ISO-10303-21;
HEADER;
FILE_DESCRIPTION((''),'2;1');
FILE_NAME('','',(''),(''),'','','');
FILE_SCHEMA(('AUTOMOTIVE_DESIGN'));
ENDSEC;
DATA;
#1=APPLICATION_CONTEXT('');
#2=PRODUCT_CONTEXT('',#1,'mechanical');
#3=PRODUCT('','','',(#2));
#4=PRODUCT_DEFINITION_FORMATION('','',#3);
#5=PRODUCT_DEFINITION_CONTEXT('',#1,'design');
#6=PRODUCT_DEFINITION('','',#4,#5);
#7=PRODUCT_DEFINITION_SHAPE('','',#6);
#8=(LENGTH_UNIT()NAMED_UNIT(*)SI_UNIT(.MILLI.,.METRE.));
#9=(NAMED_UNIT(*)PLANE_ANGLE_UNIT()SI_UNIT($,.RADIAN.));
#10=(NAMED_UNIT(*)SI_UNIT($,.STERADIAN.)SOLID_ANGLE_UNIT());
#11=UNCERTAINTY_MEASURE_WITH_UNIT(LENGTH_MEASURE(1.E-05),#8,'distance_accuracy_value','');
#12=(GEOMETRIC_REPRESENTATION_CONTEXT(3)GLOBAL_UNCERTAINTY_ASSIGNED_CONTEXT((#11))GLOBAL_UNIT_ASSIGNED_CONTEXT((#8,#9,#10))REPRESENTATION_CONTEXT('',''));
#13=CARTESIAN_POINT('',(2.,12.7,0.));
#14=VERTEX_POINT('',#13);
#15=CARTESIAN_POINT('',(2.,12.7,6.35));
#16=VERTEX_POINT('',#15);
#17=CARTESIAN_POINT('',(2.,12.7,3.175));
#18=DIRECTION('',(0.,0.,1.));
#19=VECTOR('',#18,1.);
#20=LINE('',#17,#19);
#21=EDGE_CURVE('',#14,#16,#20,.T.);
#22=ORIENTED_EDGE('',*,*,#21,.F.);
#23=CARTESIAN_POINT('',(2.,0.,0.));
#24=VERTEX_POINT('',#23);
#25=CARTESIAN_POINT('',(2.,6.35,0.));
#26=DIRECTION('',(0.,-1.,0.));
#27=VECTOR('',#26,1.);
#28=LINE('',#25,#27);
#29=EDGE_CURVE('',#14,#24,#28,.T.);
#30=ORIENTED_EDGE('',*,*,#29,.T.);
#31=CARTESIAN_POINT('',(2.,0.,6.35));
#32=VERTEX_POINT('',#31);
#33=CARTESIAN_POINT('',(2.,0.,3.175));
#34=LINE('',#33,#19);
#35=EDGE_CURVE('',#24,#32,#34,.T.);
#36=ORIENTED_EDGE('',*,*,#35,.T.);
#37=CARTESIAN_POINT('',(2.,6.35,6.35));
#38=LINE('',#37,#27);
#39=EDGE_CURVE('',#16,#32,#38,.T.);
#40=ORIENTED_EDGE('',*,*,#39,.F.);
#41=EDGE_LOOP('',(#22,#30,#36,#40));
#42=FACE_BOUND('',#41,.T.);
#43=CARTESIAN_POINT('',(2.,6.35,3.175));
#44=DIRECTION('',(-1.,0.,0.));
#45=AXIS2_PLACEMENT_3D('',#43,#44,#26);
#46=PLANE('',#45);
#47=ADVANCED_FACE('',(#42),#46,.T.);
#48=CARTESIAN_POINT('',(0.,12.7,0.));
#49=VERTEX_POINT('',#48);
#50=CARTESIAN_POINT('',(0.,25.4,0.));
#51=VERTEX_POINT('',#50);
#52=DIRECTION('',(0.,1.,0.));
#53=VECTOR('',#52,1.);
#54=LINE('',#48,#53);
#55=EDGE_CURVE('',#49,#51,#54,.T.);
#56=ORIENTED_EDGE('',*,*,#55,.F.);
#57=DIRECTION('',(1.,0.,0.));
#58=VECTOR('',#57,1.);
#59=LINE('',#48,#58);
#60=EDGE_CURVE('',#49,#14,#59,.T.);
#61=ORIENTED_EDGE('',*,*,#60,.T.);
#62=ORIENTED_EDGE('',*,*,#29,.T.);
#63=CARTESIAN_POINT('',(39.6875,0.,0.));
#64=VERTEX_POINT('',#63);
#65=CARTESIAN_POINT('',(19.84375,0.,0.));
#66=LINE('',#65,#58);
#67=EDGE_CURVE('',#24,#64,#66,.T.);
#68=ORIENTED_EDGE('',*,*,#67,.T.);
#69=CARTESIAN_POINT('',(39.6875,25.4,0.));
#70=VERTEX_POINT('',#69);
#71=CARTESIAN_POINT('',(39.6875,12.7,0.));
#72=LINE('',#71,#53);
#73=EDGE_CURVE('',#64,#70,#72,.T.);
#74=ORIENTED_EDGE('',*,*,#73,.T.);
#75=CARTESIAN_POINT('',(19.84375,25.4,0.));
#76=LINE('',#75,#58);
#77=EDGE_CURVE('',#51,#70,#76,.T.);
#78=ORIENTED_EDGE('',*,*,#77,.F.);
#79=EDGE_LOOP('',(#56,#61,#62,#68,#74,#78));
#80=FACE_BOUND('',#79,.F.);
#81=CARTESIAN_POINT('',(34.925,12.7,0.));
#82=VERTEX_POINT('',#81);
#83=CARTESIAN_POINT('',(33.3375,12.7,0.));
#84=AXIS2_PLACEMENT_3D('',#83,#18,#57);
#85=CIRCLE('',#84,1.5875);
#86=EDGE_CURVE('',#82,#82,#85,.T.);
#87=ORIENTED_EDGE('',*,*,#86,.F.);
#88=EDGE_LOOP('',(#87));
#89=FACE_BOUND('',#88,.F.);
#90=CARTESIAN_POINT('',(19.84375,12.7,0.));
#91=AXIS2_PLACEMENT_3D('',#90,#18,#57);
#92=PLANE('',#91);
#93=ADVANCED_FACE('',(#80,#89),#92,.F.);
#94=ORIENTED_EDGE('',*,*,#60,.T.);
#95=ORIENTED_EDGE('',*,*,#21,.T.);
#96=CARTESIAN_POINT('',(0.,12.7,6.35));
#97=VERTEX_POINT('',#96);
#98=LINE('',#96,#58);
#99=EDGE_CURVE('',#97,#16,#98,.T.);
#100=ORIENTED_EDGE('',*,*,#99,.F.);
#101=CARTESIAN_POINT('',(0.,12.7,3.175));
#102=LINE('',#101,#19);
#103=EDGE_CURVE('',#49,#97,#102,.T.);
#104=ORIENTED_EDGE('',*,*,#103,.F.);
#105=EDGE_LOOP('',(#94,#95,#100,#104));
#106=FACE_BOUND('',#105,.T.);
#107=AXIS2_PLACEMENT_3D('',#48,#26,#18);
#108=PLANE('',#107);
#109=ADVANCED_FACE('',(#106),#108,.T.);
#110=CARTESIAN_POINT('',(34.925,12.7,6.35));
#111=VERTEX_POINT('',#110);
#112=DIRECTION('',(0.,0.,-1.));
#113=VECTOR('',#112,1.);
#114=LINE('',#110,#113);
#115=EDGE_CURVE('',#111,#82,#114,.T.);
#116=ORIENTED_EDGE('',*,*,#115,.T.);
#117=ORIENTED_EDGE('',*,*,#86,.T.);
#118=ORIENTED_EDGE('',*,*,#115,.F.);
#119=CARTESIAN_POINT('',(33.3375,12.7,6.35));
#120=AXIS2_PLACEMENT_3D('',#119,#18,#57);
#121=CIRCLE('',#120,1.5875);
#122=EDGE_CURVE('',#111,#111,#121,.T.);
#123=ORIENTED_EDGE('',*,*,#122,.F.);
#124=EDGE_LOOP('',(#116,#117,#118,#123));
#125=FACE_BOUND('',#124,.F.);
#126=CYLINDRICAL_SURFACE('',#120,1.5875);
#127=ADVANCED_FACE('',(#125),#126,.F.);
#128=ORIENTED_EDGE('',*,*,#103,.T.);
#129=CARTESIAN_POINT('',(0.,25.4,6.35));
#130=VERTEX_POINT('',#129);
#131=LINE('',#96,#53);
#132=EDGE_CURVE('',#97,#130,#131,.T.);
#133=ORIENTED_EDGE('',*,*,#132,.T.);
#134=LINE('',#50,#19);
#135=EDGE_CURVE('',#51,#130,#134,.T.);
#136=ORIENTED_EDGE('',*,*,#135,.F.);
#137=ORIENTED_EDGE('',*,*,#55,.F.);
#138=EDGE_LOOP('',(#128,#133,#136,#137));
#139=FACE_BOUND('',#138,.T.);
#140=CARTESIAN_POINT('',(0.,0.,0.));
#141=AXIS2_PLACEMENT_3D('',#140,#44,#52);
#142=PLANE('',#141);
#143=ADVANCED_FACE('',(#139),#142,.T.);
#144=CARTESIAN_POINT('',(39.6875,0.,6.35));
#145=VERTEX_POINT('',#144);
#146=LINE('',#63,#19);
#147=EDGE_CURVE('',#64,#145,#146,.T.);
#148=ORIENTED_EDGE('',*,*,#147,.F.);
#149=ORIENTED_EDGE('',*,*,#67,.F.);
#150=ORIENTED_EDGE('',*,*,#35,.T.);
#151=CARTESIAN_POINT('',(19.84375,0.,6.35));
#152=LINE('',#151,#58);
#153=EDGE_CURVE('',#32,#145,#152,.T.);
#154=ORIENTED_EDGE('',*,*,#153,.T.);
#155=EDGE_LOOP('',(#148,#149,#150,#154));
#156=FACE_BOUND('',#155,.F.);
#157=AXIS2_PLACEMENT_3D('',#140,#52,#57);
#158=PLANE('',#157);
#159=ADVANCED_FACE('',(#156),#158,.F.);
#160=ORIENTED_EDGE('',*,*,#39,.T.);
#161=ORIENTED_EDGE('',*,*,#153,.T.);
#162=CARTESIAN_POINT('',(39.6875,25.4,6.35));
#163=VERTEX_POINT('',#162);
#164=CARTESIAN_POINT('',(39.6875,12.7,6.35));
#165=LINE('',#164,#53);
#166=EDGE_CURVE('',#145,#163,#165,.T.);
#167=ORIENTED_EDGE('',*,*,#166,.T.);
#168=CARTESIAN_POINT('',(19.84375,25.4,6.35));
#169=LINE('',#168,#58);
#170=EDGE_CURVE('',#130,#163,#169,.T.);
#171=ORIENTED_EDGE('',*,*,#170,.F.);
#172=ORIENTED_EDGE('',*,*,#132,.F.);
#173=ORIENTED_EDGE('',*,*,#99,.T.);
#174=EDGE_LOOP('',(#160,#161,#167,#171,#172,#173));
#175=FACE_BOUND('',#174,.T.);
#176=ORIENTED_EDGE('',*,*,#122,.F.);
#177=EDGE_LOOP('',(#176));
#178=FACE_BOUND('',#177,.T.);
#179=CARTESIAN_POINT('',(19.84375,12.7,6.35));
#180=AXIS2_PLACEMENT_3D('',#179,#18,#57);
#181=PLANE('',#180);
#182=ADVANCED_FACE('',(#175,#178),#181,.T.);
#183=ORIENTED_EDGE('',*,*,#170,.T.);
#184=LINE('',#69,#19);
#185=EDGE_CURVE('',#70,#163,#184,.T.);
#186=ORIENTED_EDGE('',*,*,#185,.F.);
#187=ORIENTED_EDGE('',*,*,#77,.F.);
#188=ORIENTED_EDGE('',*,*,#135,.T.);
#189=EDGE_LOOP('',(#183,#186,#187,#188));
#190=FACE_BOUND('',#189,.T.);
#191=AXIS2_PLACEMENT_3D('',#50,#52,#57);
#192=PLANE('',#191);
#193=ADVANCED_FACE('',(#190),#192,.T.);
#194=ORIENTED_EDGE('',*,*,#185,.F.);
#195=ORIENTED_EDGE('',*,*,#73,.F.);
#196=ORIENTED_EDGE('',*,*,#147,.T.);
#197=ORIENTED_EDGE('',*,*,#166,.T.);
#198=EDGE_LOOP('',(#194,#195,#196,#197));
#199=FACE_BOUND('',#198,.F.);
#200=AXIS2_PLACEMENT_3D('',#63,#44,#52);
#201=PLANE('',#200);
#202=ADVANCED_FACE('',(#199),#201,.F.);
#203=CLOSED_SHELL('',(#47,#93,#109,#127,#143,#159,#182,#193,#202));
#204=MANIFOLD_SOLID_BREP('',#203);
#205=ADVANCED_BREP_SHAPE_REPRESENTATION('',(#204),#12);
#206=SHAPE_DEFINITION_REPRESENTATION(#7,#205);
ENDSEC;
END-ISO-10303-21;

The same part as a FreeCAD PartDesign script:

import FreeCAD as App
import Part
import Sketcher

V = App.Vector
Q = App.Units.Quantity

doc = App.newDocument("Part")
body = doc.addObject("PartDesign::Body", "Body")

sketch1 = body.newObject("Sketcher::SketchObject", "Sketch")
sketch1.AttachmentSupport = (doc.getObject("XY_Plane"), [""])
sketch1.MapMode = "FlatFace"
sketch1.addGeometry(Part.LineSegment(V(0, 25, 0), V(0, 0, 0)), False)
sketch1.addGeometry(Part.LineSegment(V(0, 0, 0), V(40, 0, 0)), False)
sketch1.addGeometry(Part.LineSegment(V(40, 0, 0), V(40, 25, 0)), False)
sketch1.addGeometry(Part.LineSegment(V(40, 25, 0), V(0, 25, 0)), False)
sketch1.addConstraint(Sketcher.Constraint("Coincident", 0, 2, 1, 1))
sketch1.addConstraint(Sketcher.Constraint("Coincident", 1, 2, 2, 1))
sketch1.addConstraint(Sketcher.Constraint("Coincident", 2, 2, 3, 1))
sketch1.addConstraint(Sketcher.Constraint("Coincident", 3, 2, 0, 1))
sketch1.addConstraint(Sketcher.Constraint("Vertical", 0))
sketch1.addConstraint(Sketcher.Constraint("Horizontal", 1))
sketch1.addConstraint(Sketcher.Constraint("Vertical", 2))
sketch1.addConstraint(Sketcher.Constraint("Horizontal", 3))
sketch1.addConstraint(Sketcher.Constraint("Coincident", 0, 2, -1, 1))
sketch1.addConstraint(Sketcher.Constraint("DistanceY", 0, 2, 0, 1, Q("1 in")))
sketch1.addConstraint(Sketcher.Constraint("DistanceX", 1, 1, 1, 2, Q("1.5625 in")))
pad1 = body.newObject("PartDesign::Pad", "Pad")
pad1.Profile = sketch1
pad1.Length = Q("0.25 in")

sketch2 = body.newObject("Sketcher::SketchObject", "Sketch001")
sketch2.AttachmentSupport = (doc.getObject("YZ_Plane"), [""])
sketch2.MapMode = "FlatFace"
sketch2.addGeometry(Part.LineSegment(V(13, 6, 0), V(13, 0, 0)), False)
sketch2.addGeometry(Part.LineSegment(V(13, 0, 0), V(0, 0, 0)), False)
sketch2.addGeometry(Part.LineSegment(V(0, 0, 0), V(0, 6, 0)), False)
sketch2.addGeometry(Part.LineSegment(V(0, 6, 0), V(13, 6, 0)), False)
sketch2.addConstraint(Sketcher.Constraint("Coincident", 0, 2, 1, 1))
sketch2.addConstraint(Sketcher.Constraint("Coincident", 1, 2, 2, 1))
sketch2.addConstraint(Sketcher.Constraint("Coincident", 2, 2, 3, 1))
sketch2.addConstraint(Sketcher.Constraint("Coincident", 3, 2, 0, 1))
sketch2.addConstraint(Sketcher.Constraint("Vertical", 0))
sketch2.addConstraint(Sketcher.Constraint("Horizontal", 1))
sketch2.addConstraint(Sketcher.Constraint("Vertical", 2))
sketch2.addConstraint(Sketcher.Constraint("Horizontal", 3))
sketch2.addConstraint(Sketcher.Constraint("Coincident", 1, 2, -1, 1))
sketch2.addConstraint(Sketcher.Constraint("DistanceX", 1, 2, 1, 1, Q("0.5 in")))
sketch2.addConstraint(Sketcher.Constraint("DistanceY", 0, 2, 0, 1, Q("0.25 in")))
pocket1 = body.newObject("PartDesign::Pocket", "Pocket")
pocket1.Profile = sketch2
pocket1.Length = 2
pocket1.Reversed = True

sketch3 = body.newObject("Sketcher::SketchObject", "Sketch002")
sketch3.AttachmentSupport = (doc.getObject("XY_Plane"), [""])
sketch3.MapMode = "FlatFace"
sketch3.AttachmentOffset = App.Placement(V(0, 0, 0.25 * 25.4), App.Rotation())
sketch3.addGeometry(Part.Circle(V(33.3, 12.7, 0), V(0, 0, 1), 1.6), False)
sketch3.addConstraint(Sketcher.Constraint("Diameter", 0, Q("0.125 in")))
sketch3.addConstraint(Sketcher.Constraint("DistanceY", -1, 1, 0, 3, Q("0.5 in")))
sketch3.addConstraint(Sketcher.Constraint("DistanceX", -1, 1, 0, 3, Q("1.3125 in")))
pocket2 = body.newObject("PartDesign::Pocket", "Pocket001")
pocket2.Profile = sketch3
pocket2.Length = Q("1 in")

doc.recompute()
